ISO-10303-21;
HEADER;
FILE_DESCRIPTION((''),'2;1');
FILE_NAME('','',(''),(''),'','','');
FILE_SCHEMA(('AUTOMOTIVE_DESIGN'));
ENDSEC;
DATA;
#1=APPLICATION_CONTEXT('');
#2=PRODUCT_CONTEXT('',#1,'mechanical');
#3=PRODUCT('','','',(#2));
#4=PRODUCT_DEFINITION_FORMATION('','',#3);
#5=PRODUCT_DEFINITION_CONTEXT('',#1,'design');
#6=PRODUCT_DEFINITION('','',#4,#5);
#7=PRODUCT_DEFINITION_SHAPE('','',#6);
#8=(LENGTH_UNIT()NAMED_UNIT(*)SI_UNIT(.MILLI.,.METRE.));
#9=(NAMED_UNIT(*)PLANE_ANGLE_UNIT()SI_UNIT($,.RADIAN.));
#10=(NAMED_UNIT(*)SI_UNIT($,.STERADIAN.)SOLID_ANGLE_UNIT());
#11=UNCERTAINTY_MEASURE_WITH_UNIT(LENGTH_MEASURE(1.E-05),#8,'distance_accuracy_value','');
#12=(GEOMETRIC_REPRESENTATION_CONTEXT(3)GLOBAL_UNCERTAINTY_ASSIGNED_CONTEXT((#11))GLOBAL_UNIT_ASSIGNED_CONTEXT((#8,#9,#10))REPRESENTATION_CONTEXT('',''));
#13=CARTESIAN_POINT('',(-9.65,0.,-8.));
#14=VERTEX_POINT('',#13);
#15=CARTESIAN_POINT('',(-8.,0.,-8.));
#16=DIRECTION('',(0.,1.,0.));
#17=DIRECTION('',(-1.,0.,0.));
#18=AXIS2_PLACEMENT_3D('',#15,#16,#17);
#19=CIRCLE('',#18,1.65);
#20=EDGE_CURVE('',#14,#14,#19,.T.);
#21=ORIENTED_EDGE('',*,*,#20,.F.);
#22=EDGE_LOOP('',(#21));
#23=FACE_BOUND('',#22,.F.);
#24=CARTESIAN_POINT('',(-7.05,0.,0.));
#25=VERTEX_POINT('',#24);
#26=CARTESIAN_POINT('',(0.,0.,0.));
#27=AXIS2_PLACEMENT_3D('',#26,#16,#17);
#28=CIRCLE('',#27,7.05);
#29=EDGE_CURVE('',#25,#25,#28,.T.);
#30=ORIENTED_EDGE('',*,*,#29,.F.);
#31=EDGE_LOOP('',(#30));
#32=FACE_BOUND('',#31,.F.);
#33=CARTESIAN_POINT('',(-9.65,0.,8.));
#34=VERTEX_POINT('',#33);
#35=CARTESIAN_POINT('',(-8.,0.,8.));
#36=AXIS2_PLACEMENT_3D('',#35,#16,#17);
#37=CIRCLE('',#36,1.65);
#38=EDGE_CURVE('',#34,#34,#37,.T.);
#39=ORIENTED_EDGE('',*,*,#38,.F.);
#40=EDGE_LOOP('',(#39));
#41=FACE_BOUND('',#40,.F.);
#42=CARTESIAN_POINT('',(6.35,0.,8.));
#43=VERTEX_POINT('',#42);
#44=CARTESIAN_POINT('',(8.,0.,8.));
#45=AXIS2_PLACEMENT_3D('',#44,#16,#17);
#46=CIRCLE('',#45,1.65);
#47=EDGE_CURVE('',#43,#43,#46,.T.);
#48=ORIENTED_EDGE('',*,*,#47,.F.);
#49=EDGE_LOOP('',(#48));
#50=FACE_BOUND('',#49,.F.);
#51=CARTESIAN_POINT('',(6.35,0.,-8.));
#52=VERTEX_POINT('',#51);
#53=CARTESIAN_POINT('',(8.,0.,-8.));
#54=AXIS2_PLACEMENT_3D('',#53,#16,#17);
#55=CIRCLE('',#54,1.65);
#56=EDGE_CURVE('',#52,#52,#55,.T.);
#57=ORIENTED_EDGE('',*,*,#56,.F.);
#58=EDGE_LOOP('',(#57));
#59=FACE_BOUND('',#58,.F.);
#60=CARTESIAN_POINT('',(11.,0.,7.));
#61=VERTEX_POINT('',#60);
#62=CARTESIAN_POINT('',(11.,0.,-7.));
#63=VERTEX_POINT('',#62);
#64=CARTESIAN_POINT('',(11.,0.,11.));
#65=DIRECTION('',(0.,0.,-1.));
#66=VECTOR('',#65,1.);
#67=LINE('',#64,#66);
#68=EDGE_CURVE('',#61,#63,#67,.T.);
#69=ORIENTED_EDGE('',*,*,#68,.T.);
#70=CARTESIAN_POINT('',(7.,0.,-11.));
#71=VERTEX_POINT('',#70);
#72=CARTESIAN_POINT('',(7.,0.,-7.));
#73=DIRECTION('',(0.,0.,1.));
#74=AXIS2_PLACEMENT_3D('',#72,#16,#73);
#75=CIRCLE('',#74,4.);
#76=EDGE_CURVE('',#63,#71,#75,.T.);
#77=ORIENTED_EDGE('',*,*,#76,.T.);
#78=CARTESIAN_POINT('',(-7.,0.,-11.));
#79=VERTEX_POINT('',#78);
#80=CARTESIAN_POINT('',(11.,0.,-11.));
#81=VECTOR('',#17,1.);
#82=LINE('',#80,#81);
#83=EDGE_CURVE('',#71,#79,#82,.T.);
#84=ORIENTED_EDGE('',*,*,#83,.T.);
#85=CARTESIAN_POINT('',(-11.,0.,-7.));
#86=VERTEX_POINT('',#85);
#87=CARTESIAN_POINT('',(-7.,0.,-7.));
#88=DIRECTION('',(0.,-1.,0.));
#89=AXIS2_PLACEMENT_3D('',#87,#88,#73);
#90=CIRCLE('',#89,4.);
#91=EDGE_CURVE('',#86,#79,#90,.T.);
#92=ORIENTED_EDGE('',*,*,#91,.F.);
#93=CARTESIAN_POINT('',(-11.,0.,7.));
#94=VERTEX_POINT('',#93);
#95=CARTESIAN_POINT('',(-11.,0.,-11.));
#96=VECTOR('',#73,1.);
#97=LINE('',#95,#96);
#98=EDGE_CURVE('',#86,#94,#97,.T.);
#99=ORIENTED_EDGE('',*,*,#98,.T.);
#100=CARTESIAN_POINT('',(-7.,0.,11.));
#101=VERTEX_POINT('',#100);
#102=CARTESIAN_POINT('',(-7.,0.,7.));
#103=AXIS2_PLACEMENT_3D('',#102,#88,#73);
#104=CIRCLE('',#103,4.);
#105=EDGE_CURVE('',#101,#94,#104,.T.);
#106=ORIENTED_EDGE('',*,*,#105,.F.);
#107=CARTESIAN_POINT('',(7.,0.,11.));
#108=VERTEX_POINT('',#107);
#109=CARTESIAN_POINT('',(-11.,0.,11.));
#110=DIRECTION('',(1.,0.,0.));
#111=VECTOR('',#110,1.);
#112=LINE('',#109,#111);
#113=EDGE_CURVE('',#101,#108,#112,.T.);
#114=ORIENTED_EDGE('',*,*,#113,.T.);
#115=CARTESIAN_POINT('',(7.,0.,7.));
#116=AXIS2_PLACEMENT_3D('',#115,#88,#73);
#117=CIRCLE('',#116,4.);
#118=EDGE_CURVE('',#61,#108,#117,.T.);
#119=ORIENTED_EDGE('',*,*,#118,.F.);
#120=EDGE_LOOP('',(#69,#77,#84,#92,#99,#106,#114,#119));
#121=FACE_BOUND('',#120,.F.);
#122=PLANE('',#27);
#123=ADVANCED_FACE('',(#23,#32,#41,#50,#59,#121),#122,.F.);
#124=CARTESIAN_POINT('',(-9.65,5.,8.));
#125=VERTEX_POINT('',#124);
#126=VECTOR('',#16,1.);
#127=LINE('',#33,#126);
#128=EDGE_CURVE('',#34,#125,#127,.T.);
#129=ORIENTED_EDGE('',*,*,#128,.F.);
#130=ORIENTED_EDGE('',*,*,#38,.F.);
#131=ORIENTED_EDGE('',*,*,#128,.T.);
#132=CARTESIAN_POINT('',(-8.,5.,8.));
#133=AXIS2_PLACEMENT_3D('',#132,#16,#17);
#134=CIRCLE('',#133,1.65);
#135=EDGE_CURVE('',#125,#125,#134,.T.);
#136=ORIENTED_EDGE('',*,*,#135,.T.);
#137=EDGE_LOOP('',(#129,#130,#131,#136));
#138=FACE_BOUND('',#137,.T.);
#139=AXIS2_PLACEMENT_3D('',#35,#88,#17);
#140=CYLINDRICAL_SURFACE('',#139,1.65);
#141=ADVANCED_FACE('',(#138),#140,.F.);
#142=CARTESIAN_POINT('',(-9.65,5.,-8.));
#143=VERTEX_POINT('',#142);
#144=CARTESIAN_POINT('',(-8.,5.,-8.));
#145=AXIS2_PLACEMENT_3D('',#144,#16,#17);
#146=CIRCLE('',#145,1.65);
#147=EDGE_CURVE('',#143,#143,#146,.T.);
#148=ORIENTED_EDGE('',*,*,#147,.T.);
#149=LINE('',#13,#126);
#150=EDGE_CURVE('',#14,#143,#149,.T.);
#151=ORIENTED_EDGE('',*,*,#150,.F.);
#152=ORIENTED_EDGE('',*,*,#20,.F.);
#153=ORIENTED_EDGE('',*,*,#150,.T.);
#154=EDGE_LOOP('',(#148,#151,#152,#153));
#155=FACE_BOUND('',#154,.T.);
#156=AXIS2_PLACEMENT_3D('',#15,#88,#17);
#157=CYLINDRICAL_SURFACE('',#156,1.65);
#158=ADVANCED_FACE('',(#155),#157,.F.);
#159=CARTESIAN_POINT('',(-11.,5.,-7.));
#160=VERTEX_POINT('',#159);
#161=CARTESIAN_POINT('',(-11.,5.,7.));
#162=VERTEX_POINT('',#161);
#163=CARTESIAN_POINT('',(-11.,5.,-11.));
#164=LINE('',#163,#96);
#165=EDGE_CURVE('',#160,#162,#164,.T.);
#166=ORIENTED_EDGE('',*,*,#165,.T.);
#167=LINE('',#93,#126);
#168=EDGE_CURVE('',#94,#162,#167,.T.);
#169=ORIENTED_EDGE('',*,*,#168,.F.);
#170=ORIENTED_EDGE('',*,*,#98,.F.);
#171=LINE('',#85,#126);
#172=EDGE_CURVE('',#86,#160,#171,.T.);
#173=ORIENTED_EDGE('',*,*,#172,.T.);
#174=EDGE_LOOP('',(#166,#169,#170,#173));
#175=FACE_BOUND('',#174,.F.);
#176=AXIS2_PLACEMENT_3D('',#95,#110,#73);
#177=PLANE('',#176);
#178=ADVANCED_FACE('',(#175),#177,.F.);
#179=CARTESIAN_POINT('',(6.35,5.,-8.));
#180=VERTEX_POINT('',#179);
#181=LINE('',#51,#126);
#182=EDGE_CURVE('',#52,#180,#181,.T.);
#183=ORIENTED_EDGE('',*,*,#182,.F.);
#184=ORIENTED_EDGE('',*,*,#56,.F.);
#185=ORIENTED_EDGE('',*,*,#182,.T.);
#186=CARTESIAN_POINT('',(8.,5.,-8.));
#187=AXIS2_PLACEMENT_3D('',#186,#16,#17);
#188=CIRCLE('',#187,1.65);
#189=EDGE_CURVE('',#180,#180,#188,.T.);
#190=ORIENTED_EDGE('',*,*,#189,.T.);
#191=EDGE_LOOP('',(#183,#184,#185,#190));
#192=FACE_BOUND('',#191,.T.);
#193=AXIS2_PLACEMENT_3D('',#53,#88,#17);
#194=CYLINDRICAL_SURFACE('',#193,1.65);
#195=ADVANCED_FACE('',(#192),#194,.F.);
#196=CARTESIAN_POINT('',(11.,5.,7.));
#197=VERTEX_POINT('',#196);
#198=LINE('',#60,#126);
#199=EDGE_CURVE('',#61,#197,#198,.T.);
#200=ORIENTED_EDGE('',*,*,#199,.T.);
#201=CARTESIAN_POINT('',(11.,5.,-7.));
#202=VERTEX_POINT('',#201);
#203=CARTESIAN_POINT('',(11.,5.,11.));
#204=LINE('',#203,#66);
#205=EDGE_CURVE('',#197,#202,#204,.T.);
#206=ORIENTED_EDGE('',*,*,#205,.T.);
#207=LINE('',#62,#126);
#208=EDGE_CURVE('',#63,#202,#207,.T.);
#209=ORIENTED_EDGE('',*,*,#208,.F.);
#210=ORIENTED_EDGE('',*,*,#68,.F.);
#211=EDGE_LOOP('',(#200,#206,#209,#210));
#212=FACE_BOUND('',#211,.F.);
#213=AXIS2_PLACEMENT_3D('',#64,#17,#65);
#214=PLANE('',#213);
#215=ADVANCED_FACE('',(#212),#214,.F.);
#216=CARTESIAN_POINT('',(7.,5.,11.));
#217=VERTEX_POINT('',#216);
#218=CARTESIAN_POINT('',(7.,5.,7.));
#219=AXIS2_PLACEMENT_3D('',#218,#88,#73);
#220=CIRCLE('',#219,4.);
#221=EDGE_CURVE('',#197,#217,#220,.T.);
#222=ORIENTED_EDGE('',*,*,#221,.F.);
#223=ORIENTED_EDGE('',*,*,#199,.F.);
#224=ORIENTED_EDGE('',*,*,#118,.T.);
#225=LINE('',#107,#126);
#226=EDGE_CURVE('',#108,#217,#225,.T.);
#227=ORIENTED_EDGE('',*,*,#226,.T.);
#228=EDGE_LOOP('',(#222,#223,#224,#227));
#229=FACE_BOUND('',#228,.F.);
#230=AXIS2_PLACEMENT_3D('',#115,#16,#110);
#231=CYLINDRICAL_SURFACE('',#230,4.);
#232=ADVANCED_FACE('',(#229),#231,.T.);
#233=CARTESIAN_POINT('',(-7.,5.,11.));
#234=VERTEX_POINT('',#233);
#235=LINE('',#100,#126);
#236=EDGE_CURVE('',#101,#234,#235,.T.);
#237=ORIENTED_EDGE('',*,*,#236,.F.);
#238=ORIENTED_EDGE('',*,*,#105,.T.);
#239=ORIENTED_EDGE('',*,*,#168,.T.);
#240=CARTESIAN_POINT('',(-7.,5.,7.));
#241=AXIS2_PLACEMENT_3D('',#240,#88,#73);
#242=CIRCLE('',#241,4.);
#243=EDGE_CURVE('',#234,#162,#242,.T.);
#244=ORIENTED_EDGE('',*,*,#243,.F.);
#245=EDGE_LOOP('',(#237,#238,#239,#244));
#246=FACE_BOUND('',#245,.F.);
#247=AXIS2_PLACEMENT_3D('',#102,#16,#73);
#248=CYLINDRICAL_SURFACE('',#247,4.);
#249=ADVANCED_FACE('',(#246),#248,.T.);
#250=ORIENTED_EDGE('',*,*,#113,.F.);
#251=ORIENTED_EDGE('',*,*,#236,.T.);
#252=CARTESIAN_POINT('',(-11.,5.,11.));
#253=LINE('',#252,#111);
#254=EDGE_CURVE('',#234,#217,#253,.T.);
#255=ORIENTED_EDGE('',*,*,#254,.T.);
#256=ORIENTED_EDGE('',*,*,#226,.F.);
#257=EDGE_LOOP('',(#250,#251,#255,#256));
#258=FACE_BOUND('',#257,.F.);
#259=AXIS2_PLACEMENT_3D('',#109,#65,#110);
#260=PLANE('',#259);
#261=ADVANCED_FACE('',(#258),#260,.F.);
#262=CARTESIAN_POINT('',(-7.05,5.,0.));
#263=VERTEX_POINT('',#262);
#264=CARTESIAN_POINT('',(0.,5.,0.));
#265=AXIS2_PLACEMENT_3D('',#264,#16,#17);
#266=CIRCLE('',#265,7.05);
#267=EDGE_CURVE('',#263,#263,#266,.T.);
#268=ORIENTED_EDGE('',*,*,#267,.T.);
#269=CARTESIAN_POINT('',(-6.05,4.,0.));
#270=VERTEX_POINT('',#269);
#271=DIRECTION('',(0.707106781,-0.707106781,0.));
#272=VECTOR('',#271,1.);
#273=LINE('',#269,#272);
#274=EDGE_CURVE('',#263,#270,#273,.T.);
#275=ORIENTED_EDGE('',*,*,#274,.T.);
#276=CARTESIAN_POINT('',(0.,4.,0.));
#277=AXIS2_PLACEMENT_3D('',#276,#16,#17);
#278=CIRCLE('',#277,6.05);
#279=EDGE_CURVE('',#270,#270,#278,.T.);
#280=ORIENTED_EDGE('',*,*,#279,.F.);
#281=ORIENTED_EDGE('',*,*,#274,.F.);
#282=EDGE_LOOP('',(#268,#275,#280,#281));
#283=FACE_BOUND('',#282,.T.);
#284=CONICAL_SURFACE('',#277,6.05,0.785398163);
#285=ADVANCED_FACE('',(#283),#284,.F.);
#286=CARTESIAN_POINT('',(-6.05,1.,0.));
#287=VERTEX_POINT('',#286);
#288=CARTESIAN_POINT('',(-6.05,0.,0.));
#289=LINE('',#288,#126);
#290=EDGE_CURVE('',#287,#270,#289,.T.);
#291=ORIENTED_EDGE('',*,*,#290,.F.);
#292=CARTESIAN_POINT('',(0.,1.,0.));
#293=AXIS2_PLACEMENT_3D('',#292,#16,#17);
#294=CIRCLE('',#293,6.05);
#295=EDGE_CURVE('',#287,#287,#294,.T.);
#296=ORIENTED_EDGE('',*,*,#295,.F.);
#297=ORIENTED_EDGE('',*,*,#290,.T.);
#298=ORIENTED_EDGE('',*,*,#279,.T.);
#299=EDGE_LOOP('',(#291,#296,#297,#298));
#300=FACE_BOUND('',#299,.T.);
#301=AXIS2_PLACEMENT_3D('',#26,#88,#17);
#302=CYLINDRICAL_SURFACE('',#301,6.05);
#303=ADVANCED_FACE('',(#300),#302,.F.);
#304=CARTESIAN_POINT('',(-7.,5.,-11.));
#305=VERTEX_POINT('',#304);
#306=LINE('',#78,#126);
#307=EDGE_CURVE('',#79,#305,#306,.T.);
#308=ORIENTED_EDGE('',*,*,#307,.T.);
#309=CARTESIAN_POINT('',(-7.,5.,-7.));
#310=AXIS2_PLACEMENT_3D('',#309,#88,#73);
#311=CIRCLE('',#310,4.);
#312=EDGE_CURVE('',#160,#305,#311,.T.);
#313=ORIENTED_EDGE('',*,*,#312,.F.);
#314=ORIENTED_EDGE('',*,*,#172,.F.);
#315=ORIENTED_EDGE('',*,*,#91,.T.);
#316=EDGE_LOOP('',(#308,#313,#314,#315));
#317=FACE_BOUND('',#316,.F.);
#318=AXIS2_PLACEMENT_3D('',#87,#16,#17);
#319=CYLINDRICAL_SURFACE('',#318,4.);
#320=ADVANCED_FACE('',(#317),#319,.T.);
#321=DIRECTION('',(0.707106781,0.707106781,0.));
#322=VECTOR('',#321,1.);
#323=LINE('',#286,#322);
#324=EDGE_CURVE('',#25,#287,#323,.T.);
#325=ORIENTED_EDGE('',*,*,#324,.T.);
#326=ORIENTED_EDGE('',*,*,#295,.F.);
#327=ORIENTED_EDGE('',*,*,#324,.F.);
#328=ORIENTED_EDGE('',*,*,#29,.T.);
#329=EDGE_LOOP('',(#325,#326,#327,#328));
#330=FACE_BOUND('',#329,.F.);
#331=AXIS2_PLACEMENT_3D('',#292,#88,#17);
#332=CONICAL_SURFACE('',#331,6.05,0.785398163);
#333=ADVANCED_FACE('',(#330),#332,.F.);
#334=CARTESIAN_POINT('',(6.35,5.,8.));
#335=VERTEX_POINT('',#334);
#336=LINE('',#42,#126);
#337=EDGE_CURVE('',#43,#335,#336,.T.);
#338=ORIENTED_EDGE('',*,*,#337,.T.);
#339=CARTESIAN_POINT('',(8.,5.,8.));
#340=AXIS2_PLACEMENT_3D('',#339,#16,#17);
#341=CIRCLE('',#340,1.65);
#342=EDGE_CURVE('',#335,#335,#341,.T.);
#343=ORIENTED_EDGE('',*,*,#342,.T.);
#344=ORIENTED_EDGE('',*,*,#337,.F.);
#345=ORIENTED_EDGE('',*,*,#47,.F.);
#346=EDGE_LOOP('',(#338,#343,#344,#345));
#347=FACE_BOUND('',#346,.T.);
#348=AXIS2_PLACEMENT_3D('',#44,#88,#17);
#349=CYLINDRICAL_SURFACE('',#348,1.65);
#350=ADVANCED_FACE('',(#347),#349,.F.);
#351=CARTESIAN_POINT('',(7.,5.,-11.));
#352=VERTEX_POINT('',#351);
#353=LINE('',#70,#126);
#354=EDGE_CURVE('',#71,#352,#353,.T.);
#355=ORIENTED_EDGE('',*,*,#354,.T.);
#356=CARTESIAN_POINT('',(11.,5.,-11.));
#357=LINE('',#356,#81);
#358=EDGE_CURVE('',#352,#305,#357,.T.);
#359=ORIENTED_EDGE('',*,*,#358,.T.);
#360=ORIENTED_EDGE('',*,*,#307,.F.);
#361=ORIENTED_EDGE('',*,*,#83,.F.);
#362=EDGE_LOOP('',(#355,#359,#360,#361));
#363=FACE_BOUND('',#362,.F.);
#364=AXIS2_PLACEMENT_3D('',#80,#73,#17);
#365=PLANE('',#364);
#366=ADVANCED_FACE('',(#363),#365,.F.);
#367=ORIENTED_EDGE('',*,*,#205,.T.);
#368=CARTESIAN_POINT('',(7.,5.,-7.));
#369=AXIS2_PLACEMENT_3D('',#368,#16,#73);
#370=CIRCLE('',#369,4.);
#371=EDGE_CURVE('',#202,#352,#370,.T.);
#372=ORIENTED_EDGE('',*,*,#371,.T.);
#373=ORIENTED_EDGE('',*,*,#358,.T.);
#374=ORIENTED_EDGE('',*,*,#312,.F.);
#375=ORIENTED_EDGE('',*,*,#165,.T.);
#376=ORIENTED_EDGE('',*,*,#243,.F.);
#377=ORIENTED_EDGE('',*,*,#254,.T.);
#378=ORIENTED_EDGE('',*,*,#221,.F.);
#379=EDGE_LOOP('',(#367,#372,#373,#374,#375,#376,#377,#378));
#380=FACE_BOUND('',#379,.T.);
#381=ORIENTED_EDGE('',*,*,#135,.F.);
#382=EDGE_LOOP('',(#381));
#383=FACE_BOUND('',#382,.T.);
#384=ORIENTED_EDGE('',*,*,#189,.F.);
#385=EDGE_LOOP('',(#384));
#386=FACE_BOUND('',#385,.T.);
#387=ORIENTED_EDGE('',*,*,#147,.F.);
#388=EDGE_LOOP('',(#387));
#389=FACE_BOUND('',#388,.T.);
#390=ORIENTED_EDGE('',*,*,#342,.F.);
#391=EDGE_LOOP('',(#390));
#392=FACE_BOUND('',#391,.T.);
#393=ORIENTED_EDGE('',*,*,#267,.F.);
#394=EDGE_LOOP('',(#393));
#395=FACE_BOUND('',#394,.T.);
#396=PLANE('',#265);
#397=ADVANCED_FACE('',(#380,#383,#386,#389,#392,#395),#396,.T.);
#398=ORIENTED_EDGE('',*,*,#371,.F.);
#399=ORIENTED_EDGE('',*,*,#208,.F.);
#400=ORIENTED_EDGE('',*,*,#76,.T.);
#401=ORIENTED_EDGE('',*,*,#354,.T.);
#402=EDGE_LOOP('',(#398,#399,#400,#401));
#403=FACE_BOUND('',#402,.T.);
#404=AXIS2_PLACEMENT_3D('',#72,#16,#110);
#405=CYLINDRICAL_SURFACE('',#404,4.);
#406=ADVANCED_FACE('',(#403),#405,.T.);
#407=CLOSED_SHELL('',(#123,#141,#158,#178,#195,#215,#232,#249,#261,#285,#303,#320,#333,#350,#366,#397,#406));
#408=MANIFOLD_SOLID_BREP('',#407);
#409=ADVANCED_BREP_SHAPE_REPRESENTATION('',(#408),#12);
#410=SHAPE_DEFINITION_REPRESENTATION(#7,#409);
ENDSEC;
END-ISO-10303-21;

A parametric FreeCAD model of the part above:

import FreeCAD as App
import Part
import Sketcher
from FreeCAD import Vector
Q = App.Units.Quantity


def edges_at(feature, points):
    """Names of the edges that pass closest to the given points."""
    edges = feature.Shape.Edges
    near = lambda p: min(range(len(edges)), key=lambda i: edges[i].distToShape(Part.Vertex(*p))[0])
    return sorted({f"Edge{near(p) + 1}" for p in points})


def add_polygon(sketch, points):
    """Adds a closed chain of lines whose ends are joined by coincident constraints."""
    first, n = sketch.GeometryCount, len(points)
    for a, b in zip(points, points[1:] + points[:1]):
        sketch.addGeometry(Part.LineSegment(App.Vector(*a, 0), App.Vector(*b, 0)), False)
    for i in range(n):
        sketch.addConstraint(Sketcher.Constraint("Coincident", first + i, 2, first + (i + 1) % n, 1))

doc = App.newDocument("Part")
body = doc.addObject("PartDesign::Body", "Body")

sketch1 = doc.addObject("Sketcher::SketchObject", "Sketch")
body.addObject(sketch1)
sketch1.AttachmentSupport = (doc.XZ_Plane, [""])
sketch1.MapMode = "FlatFace"
add_polygon(sketch1, [(11, 11), (11, -11), (-11, -11), (-11, 11)])
sketch1.addGeometry(Part.Circle(Vector(8, -8, 0), Vector(0, 0, 1), 1.6), False)
sketch1.addGeometry(Part.Circle(Vector(-8, -8, 0), Vector(0, 0, 1), 1.6), False)
sketch1.addGeometry(Part.Circle(Vector(8, 8, 0), Vector(0, 0, 1), 1.6), False)
sketch1.addGeometry(Part.Circle(Vector(0, 0, 0), Vector(0, 0, 1), 6), False)
sketch1.addGeometry(Part.Circle(Vector(-8, 8, 0), Vector(0, 0, 1), 1.6), False)
sketch1.addConstraint([
    Sketcher.Constraint("Vertical", 0),
    Sketcher.Constraint("Horizontal", 1),
    Sketcher.Constraint("Vertical", 2),
    Sketcher.Constraint("Horizontal", 3),
    Sketcher.Constraint("Coincident", 7, 3, -1, 1),
    Sketcher.Constraint("Equal", 4, 5),
    Sketcher.Constraint("Equal", 5, 6),
    Sketcher.Constraint("Equal", 6, 8),
    Sketcher.Constraint("Symmetric", 5, 3, 6, 3, -1, 1),
    Sketcher.Constraint("Symmetric", 4, 3, 8, 3, -1, 1),
    Sketcher.Constraint("Symmetric", 0, 2, 2, 2, -1, 1),
    Sketcher.Constraint("Symmetric", 4, 3, 5, 3, -2),
    Sketcher.Constraint("Equal", 3, 0),
    Sketcher.Constraint("Diameter", 4, Q("3.3 mm")),
    Sketcher.Constraint("Diameter", 7, Q("12.1 mm")),
    Sketcher.Constraint("DistanceX", 1, 2, 1, 1, Q("22 mm")),
    Sketcher.Constraint("DistanceX", 5, 3, 4, 3, Q("16 mm")),
    Sketcher.Constraint("DistanceY", 4, 3, 6, 3, Q("16 mm")),
])
pad1 = doc.addObject("PartDesign::Pad", "Pad")
body.addObject(pad1)
pad1.Profile = sketch1
pad1.Length = 5
pad1.Reversed = True
doc.recompute()

fillet = doc.addObject("PartDesign::Fillet", "Fillet")
body.addObject(fillet)
fillet.Base = (pad1, edges_at(pad1, [
    (-11, 2.5, -11),
    (-11, 2.5, 11),
    (11, 2.5, 11),
    (11, 2.5, -11),
]))
fillet.Radius = 4
doc.recompute()

chamfer = doc.addObject("PartDesign::Chamfer", "Chamfer")
body.addObject(chamfer)
chamfer.Base = (fillet, edges_at(fillet, [(6.05, 5, 0), (6.05, 0, 0)]))
chamfer.Size = 1

doc.recompute()
